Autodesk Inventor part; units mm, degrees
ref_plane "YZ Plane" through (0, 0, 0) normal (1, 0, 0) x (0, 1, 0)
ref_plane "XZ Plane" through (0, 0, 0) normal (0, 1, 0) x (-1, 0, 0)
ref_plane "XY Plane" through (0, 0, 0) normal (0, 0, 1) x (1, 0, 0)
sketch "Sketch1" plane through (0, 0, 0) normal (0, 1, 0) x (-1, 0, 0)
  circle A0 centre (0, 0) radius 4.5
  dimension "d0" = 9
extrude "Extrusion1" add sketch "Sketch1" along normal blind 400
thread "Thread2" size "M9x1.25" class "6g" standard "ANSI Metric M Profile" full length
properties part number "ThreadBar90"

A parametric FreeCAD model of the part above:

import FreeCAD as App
import Part
import Sketcher

V = App.Vector

doc = App.newDocument("Part")
body = doc.addObject("PartDesign::Body", "Body")

sketch1 = doc.addObject("Sketcher::SketchObject", "Sketch")
body.addObject(sketch1)
sketch1.AttachmentSupport = (doc.XZ_Plane, [""])
sketch1.MapMode = "FlatFace"
sketch1.addGeometry(Part.Circle(V(0, 0, 0), V(0, 0, 1), 4.5), False)
sketch1.addConstraint([
    Sketcher.Constraint("Coincident", 0, 3, -1, 1),
    Sketcher.Constraint("Diameter", 0, 9.0),
])
pad1 = doc.addObject("PartDesign::Pad", "Pad")
body.addObject(pad1)
pad1.Profile = sketch1
pad1.Length = 400
pad1.Reversed = True

doc.recompute()
